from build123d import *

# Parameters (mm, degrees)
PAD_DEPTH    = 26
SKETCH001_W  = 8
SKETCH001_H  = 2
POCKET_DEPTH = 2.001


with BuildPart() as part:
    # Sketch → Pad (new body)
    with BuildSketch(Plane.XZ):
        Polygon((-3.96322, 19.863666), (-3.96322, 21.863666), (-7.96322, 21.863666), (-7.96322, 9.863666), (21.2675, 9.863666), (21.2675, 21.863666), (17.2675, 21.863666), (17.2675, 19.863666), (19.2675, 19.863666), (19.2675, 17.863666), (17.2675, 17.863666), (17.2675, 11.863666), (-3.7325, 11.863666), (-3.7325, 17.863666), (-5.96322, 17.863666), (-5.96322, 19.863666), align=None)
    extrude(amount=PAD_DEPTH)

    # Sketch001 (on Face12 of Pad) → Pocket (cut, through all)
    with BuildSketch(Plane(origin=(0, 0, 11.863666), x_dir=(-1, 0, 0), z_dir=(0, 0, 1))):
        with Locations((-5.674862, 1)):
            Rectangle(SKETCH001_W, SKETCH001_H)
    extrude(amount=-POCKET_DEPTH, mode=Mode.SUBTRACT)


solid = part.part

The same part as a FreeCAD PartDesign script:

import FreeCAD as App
import Part
import Sketcher
from FreeCAD import Vector
Q = App.Units.Quantity

doc = App.newDocument("Part")
body = doc.addObject("PartDesign::Body", "Body")

# Sketch on XZ plane
sketch1 = body.newObject("Sketcher::SketchObject", "Sketch")
sketch1.AttachmentSupport = (doc.getObject("XZ_Plane"), [""])
sketch1.MapMode = "FlatFace"
sketch1.addGeometry(Part.LineSegment(Vector(-3.96322, 19.863666, 0), Vector(-3.96322, 21.863666, 0)), False)
sketch1.addGeometry(Part.LineSegment(Vector(-3.96322, 21.863666, 0), Vector(-7.96322, 21.863666, 0)), False)
sketch1.addGeometry(Part.LineSegment(Vector(-7.96322, 21.863666, 0), Vector(-7.96322, 9.863666, 0)), False)
sketch1.addGeometry(Part.LineSegment(Vector(-7.96322, 9.863666, 0), Vector(21.2675, 9.863666, 0)), False)
sketch1.addGeometry(Part.LineSegment(Vector(21.2675, 9.863666, 0), Vector(21.2675, 21.863666, 0)), False)
sketch1.addGeometry(Part.LineSegment(Vector(21.2675, 21.863666, 0), Vector(17.2675, 21.863666, 0)), False)
sketch1.addGeometry(Part.LineSegment(Vector(17.2675, 21.863666, 0), Vector(17.2675, 19.863666, 0)), False)
sketch1.addGeometry(Part.LineSegment(Vector(17.2675, 19.863666, 0), Vector(19.2675, 19.863666, 0)), False)
sketch1.addGeometry(Part.LineSegment(Vector(19.2675, 19.863666, 0), Vector(19.2675, 17.863666, 0)), False)
sketch1.addGeometry(Part.LineSegment(Vector(19.2675, 17.863666, 0), Vector(17.2675, 17.863666, 0)), False)
sketch1.addGeometry(Part.LineSegment(Vector(17.2675, 17.863666, 0), Vector(17.2675, 11.863666, 0)), False)
sketch1.addGeometry(Part.LineSegment(Vector(17.2675, 11.863666, 0), Vector(-3.7325, 11.863666, 0)), False)
sketch1.addGeometry(Part.LineSegment(Vector(-3.7325, 11.863666, 0), Vector(-3.7325, 17.863666, 0)), False)
sketch1.addGeometry(Part.LineSegment(Vector(-3.7325, 17.863666, 0), Vector(-5.96322, 17.863666, 0)), False)
sketch1.addGeometry(Part.LineSegment(Vector(-5.96322, 17.863666, 0), Vector(-5.96322, 19.863666, 0)), False)
sketch1.addGeometry(Part.LineSegment(Vector(-5.96322, 19.863666, 0), Vector(-3.96322, 19.863666, 0)), False)
sketch1.addConstraint(Sketcher.Constraint("Coincident", 0, 2, 1, 1))
sketch1.addConstraint(Sketcher.Constraint("Coincident", 1, 2, 2, 1))
sketch1.addConstraint(Sketcher.Constraint("Coincident", 2, 2, 3, 1))
sketch1.addConstraint(Sketcher.Constraint("Coincident", 3, 2, 4, 1))
sketch1.addConstraint(Sketcher.Constraint("Coincident", 4, 2, 5, 1))
sketch1.addConstraint(Sketcher.Constraint("Coincident", 5, 2, 6, 1))
sketch1.addConstraint(Sketcher.Constraint("Coincident", 6, 2, 7, 1))
sketch1.addConstraint(Sketcher.Constraint("Coincident", 7, 2, 8, 1))
sketch1.addConstraint(Sketcher.Constraint("Coincident", 8, 2, 9, 1))
sketch1.addConstraint(Sketcher.Constraint("Coincident", 9, 2, 10, 1))
sketch1.addConstraint(Sketcher.Constraint("Coincident", 10, 2, 11, 1))
sketch1.addConstraint(Sketcher.Constraint("Coincident", 11, 2, 12, 1))
sketch1.addConstraint(Sketcher.Constraint("Coincident", 12, 2, 13, 1))
sketch1.addConstraint(Sketcher.Constraint("Coincident", 13, 2, 14, 1))
sketch1.addConstraint(Sketcher.Constraint("Coincident", 14, 2, 15, 1))
sketch1.addConstraint(Sketcher.Constraint("Coincident", 15, 2, 0, 1))
sketch1.addConstraint(Sketcher.Constraint("Vertical", 0))
sketch1.addConstraint(Sketcher.Constraint("Horizontal", 1))
sketch1.addConstraint(Sketcher.Constraint("Vertical", 2))
sketch1.addConstraint(Sketcher.Constraint("Horizontal", 3))
sketch1.addConstraint(Sketcher.Constraint("Vertical", 4))
sketch1.addConstraint(Sketcher.Constraint("Horizontal", 5))
sketch1.addConstraint(Sketcher.Constraint("Vertical", 6))
sketch1.addConstraint(Sketcher.Constraint("Horizontal", 7))
sketch1.addConstraint(Sketcher.Constraint("Vertical", 8))
sketch1.addConstraint(Sketcher.Constraint("Horizontal", 9))
sketch1.addConstraint(Sketcher.Constraint("Vertical", 10))
sketch1.addConstraint(Sketcher.Constraint("Horizontal", 11))
sketch1.addConstraint(Sketcher.Constraint("Vertical", 12))
sketch1.addConstraint(Sketcher.Constraint("Horizontal", 13))
sketch1.addConstraint(Sketcher.Constraint("Vertical", 14))
sketch1.addConstraint(Sketcher.Constraint("Horizontal", 15))
sketch1.addConstraint(Sketcher.Constraint("Horizontal", 1, 2, 4, 2))
sketch1.addConstraint(Sketcher.Constraint("Horizontal", 9, 2, 12, 2))
sketch1.addConstraint(Sketcher.Constraint("Horizontal", 7, 2, 14, 2))
sketch1.addConstraint(Sketcher.Constraint("Vertical", 6, 2, 9, 2))
sketch1.addConstraint(Sketcher.Constraint("Equal", 1, 5))
sketch1.addConstraint(Sketcher.Constraint("Equal", 9, 15))
sketch1.addConstraint(Sketcher.Constraint("Equal", 15, 0))
sketch1.addConstraint(Sketcher.Constraint("Equal", 6, 8))
sketch1.addConstraint(Sketcher.Constraint("DistanceX", 1, 2, 1, 1, Q("4 mm")))
sketch1.addConstraint(Sketcher.Constraint("DistanceX", 7, 1, 7, 2, Q("2 mm")))
sketch1.addConstraint(Sketcher.Constraint("DistanceX", 11, 2, 11, 1, Q("21 mm")))
sketch1.addConstraint(Sketcher.Constraint("DistanceY", 2, 2, 2, 1, Q("12 mm")))
sketch1.addConstraint(Sketcher.Constraint("DistanceY", 10, 2, 10, 1, Q("6 mm")))
sketch1.addConstraint(Sketcher.Constraint("DistanceX", 3, 1, 3, 2, Q("29.23072 mm")))
sketch1.addConstraint(Sketcher.Constraint("DistanceX", -1, 1, 3, 2, Q("21.2675 mm")))
sketch1.addConstraint(Sketcher.Constraint("DistanceY", -1, 1, 0, 2, Q("21.863666 mm")))
pad1 = body.newObject("PartDesign::Pad", "Pad")
pad1.Profile = sketch1
pad1.Length = 26

# Sketch on XY plane
sketch2 = body.newObject("Sketcher::SketchObject", "Sketch001")
sketch2.AttachmentSupport = (doc.getObject("XY_Plane"), [""])
sketch2.MapMode = "FlatFace"
sketch2.AttachmentOffset = App.Placement(Vector(0, 0, 11.863666), App.Rotation())
sketch2.addGeometry(Part.LineSegment(Vector(9.674862, -2, 0), Vector(9.674862, 0, 0)), False)
sketch2.addGeometry(Part.LineSegment(Vector(9.674862, 0, 0), Vector(1.674862, 0, 0)), False)
sketch2.addGeometry(Part.LineSegment(Vector(1.674862, 0, 0), Vector(1.674862, -2, 0)), False)
sketch2.addGeometry(Part.LineSegment(Vector(1.674862, -2, 0), Vector(9.674862, -2, 0)), False)
sketch2.addConstraint(Sketcher.Constraint("Coincident", 0, 2, 1, 1))
sketch2.addConstraint(Sketcher.Constraint("Coincident", 1, 2, 2, 1))
sketch2.addConstraint(Sketcher.Constraint("Coincident", 2, 2, 3, 1))
sketch2.addConstraint(Sketcher.Constraint("Coincident", 3, 2, 0, 1))
sketch2.addConstraint(Sketcher.Constraint("Vertical", 0))
sketch2.addConstraint(Sketcher.Constraint("Horizontal", 1))
sketch2.addConstraint(Sketcher.Constraint("Vertical", 2))
sketch2.addConstraint(Sketcher.Constraint("Horizontal", 3))
sketch2.addConstraint(Sketcher.Constraint("PointOnObject", 0, 2, -1))
sketch2.addConstraint(Sketcher.Constraint("DistanceX", 1, 2, 1, 1, Q("8 mm")))
sketch2.addConstraint(Sketcher.Constraint("DistanceY", 0, 1, 0, 2, Q("2 mm")))
sketch2.addConstraint(Sketcher.Constraint("DistanceX", -1, 1, 0, 2, Q("9.674862 mm")))
pocket1 = body.newObject("PartDesign::Pocket", "Pocket")
pocket1.Profile = sketch2
pocket1.Type = "ThroughAll"

doc.recompute()
